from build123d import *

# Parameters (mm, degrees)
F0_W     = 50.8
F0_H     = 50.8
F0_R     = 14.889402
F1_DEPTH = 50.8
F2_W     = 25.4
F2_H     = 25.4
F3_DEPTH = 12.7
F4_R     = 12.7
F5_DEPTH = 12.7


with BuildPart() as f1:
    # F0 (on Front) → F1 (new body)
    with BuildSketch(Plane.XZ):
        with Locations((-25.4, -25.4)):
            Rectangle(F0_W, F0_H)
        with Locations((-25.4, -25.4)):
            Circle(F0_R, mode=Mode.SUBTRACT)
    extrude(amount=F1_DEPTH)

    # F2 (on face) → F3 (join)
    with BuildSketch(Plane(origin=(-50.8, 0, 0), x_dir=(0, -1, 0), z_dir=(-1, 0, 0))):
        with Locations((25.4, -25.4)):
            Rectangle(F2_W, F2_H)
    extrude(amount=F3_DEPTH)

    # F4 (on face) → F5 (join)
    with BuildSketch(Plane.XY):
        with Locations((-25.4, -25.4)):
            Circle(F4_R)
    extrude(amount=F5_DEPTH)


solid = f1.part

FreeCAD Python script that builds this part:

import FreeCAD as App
import Part
import Sketcher
Q = App.Units.Quantity


def add_polygon(sketch, points):
    """Adds a closed chain of lines whose ends are joined by coincident constraints."""
    first, n = sketch.GeometryCount, len(points)
    for a, b in zip(points, points[1:] + points[:1]):
        sketch.addGeometry(Part.LineSegment(App.Vector(*a, 0), App.Vector(*b, 0)), False)
    for i in range(n):
        sketch.addConstraint(Sketcher.Constraint("Coincident", first + i, 2, first + (i + 1) % n, 1))

doc = App.newDocument("Part")
body = doc.addObject("PartDesign::Body", "Body")

# Sketch on XZ plane
sketch1 = body.newObject("Sketcher::SketchObject", "Sketch")
sketch1.AttachmentSupport = (doc.getObject("XZ_Plane"), [""])
sketch1.MapMode = "FlatFace"
add_polygon(sketch1, [(-50.8, 0), (-50.8, -50.8), (0, -50.8), (0, 0)])  # lines 0-3
sketch1.addGeometry(Part.Circle(App.Vector(-25.4, -25.4, 0), App.Vector(0, 0, 1), 14.889402), False)  # 4
sketch1.addConstraint([
    Sketcher.Constraint("Vertical", 0),
    Sketcher.Constraint("Horizontal", 1),
    Sketcher.Constraint("Vertical", 2),
    Sketcher.Constraint("Horizontal", 3),
    Sketcher.Constraint("Coincident", 2, 2, -1, 1),
    Sketcher.Constraint("Equal", 3, 0),
    Sketcher.Constraint("DistanceX", 1, 1, 1, 2, Q("2 in")),
    Sketcher.Constraint("DistanceX", 4, 3, -1, 1, Q("1 in")),
    Sketcher.Constraint("DistanceY", 4, 3, -1, 1, Q("1 in")),
    Sketcher.Constraint("Diameter", 4, 29.778804),
])
pad1 = body.newObject("PartDesign::Pad", "Pad")
pad1.Profile = sketch1
pad1.Length = Q("2 in")

# Sketch on YZ plane
sketch2 = body.newObject("Sketcher::SketchObject", "Sketch001")
sketch2.AttachmentSupport = (doc.getObject("YZ_Plane"), [""])
sketch2.MapMode = "FlatFace"
sketch2.AttachmentOffset = App.Placement(App.Vector(0, 0, -2 * 25.4), App.Rotation())
add_polygon(sketch2, [(-12.7, -12.7), (-12.7, -38.1), (-38.1, -38.1), (-38.1, -12.7)])  # lines 0-3
sketch2.addConstraint([
    Sketcher.Constraint("Vertical", 0),
    Sketcher.Constraint("Horizontal", 1),
    Sketcher.Constraint("Vertical", 2),
    Sketcher.Constraint("Horizontal", 3),
    Sketcher.Constraint("Equal", 3, 0),
    Sketcher.Constraint("DistanceX", 1, 2, 1, 1, Q("1 in")),
    Sketcher.Constraint("DistanceX", 0, 2, -1, 1, Q("0.5 in")),
    Sketcher.Constraint("DistanceY", 0, 2, -1, 1, Q("1.5 in")),
])
pad2 = body.newObject("PartDesign::Pad", "Pad001")
pad2.Profile = sketch2
pad2.Length = Q("0.5 in")
pad2.Reversed = True

# Sketch on XY plane
sketch3 = body.newObject("Sketcher::SketchObject", "Sketch002")
sketch3.AttachmentSupport = (doc.getObject("XY_Plane"), [""])
sketch3.MapMode = "FlatFace"
sketch3.addGeometry(Part.Circle(App.Vector(-25.4, -25.4, 0), App.Vector(0, 0, 1), 12.7), False)
sketch3.addConstraint([
    Sketcher.Constraint("Diameter", 0, Q("1 in")),
    Sketcher.Constraint("DistanceX", 0, 3, -1, 1, Q("1 in")),
    Sketcher.Constraint("DistanceY", 0, 3, -1, 1, Q("1 in")),
])
pad3 = body.newObject("PartDesign::Pad", "Pad002")
pad3.Profile = sketch3
pad3.Length = Q("0.5 in")

doc.recompute()
